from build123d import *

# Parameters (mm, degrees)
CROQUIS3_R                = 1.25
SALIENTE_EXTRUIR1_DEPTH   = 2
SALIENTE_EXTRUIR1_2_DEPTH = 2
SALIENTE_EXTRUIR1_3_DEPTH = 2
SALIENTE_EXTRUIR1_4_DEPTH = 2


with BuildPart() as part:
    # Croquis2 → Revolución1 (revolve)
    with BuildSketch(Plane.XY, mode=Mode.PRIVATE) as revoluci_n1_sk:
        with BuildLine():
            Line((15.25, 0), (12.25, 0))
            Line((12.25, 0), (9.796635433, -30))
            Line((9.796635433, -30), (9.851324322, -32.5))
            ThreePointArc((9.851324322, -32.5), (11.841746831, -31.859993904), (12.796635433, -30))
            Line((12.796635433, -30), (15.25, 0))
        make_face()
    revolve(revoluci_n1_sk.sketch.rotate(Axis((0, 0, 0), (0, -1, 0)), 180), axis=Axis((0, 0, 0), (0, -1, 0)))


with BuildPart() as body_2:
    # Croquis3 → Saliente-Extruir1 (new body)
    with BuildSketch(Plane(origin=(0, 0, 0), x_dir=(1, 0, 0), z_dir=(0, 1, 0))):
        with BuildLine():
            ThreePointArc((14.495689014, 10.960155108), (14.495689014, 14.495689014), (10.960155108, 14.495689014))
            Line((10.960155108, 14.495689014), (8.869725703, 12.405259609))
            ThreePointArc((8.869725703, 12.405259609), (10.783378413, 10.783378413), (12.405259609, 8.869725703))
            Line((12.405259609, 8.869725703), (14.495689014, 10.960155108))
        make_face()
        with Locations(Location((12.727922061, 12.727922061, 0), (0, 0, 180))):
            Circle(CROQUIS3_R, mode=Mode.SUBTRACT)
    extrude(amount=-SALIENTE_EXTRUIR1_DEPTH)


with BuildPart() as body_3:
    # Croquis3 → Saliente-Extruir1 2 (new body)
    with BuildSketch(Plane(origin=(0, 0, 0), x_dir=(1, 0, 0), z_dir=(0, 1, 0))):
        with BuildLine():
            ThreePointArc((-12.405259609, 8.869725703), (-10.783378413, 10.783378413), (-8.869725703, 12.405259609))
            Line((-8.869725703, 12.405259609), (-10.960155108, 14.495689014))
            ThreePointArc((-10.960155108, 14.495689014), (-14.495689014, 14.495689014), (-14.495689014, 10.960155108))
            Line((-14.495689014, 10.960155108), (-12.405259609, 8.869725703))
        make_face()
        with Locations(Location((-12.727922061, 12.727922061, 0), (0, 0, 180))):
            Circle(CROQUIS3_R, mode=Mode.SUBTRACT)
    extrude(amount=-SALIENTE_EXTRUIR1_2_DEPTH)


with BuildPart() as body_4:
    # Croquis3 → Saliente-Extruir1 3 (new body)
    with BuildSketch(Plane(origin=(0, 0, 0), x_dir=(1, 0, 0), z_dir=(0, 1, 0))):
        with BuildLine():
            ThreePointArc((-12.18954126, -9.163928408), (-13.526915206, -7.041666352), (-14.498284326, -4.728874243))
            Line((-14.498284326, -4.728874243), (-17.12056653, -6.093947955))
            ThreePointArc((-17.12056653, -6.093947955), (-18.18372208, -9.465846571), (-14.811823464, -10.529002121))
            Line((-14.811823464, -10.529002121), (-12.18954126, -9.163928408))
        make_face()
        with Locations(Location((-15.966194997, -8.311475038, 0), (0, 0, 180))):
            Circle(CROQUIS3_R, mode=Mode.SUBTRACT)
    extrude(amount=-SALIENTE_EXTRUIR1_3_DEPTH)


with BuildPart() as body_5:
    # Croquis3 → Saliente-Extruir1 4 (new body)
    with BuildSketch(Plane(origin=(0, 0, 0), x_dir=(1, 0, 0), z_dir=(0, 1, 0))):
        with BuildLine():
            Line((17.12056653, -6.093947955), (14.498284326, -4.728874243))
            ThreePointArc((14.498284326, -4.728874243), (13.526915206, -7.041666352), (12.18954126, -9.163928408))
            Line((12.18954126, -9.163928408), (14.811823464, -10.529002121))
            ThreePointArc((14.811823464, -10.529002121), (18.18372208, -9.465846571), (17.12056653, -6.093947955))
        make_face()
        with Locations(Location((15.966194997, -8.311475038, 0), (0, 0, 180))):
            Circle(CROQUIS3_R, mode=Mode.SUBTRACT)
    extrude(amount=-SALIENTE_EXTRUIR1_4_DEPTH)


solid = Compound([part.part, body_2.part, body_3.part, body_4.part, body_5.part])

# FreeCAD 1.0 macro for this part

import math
import FreeCAD as App
import Part
import Sketcher

V = App.Vector
Q = App.Units.Quantity

doc = App.newDocument("Part")
body = doc.addObject("PartDesign::Body", "Body")

# Sketch on XY plane
sketch1 = body.newObject("Sketcher::SketchObject", "Sketch")
sketch1.AttachmentSupport = (doc.getObject("XY_Plane"), [""])
sketch1.MapMode = "FlatFace"
sketch1.addGeometry(Part.LineSegment(V(15.2, 0, 0), V(12.2, 0, 0)), False)
sketch1.addGeometry(Part.LineSegment(V(12.2, 0, 0), V(9.8, -30, 0)), False)
sketch1.addGeometry(Part.LineSegment(V(9.8, -30, 0), V(9.9, -32.5, 0)), False)
sketch1.addGeometry(Part.ArcOfCircle(Part.Circle(V(10.1, -29.8, 0), V(0, 0, 1), 2.7), math.radians(-95), math.radians(-5)), False)
sketch1.addGeometry(Part.LineSegment(V(12.8, -30, 0), V(15.2, 0, 0)), False)
sketch1.addConstraint(Sketcher.Constraint("Coincident", 0, 2, 1, 1))
sketch1.addConstraint(Sketcher.Constraint("Coincident", 1, 2, 2, 1))
sketch1.addConstraint(Sketcher.Constraint("Coincident", 2, 2, 3, 1))
sketch1.addConstraint(Sketcher.Constraint("Tangent", 3, 2, 4, 1))
sketch1.addConstraint(Sketcher.Constraint("Coincident", 4, 2, 0, 1))
sketch1.addConstraint(Sketcher.Constraint("Horizontal", 0))
sketch1.addConstraint(Sketcher.Constraint("PointOnObject", 0, 2, -1))
sketch1.addConstraint(Sketcher.Constraint("Parallel", 1, 4))
sketch1.addConstraint(Sketcher.Constraint("Horizontal", 1, 2, 3, 2))
sketch1.addConstraint(Sketcher.Constraint("DistanceX", 0, 2, 0, 1, 3.0))
sketch1.addConstraint(Sketcher.Constraint("DistanceY", 1, 2, -1, 1, 30.0))
sketch1.addConstraint(Sketcher.Constraint("DistanceY", 2, 2, -1, 1, 32.5))
sketch1.addConstraint(Sketcher.Constraint("DistanceX", -1, 1, 0, 2, 12.25))
sketch1.addConstraint(Sketcher.Constraint("Radius", 3, 2.731745))
sketch1.addConstraint(Sketcher.Constraint("Distance", 2, 2.500598))
revolution = body.newObject("PartDesign::Revolution", "Revolution")
revolution.Profile = sketch1
revolution.ReferenceAxis = (sketch1, ["V_Axis"])
revolution.Angle = 360
body2 = doc.addObject("PartDesign::Body", "Body001")

# Sketch on XZ plane
sketch2 = body2.newObject("Sketcher::SketchObject", "Sketch001")
sketch2.AttachmentSupport = (doc.getObject("XZ_Plane001"), [""])
sketch2.MapMode = "FlatFace"
sketch2.addGeometry(Part.ArcOfCircle(Part.Circle(V(12.7, -12.7, 0), V(0, 0, 1), 2.5), math.radians(-135), math.radians(45)), False)
sketch2.addGeometry(Part.LineSegment(V(11, -14.5, 0), V(8.9, -12.4, 0)), False)
sketch2.addGeometry(Part.ArcOfCircle(Part.Circle(V(0, 0, 0), V(0, 0, 1), 15.3), math.radians(-54.44), math.radians(-35.56)), False)
sketch2.addGeometry(Part.LineSegment(V(12.4, -8.9, 0), V(14.5, -11, 0)), False)
sketch2.addGeometry(Part.Circle(V(12.7, -12.7, 0), V(0, 0, 1), 1.2), False)
sketch2.addConstraint(Sketcher.Constraint("Tangent", 0, 1, 1, 1))
sketch2.addConstraint(Sketcher.Constraint("Coincident", 1, 2, 2, 1))
sketch2.addConstraint(Sketcher.Constraint("Coincident", 2, 2, 3, 1))
sketch2.addConstraint(Sketcher.Constraint("Tangent", 3, 2, 0, 2))
sketch2.addConstraint(Sketcher.Constraint("Coincident", 2, 3, -1, 1))
sketch2.addConstraint(Sketcher.Constraint("Coincident", 4, 3, 0, 3))
sketch2.addConstraint(Sketcher.Constraint("Parallel", 1, 3))
sketch2.addConstraint(Sketcher.Constraint("Equal", 1, 3))
sketch2.addConstraint(Sketcher.Constraint("Diameter", 4, 2.5))
sketch2.addConstraint(Sketcher.Constraint("Radius", 0, 2.5))
sketch2.addConstraint(Sketcher.Constraint("Angle", 1, Q("135 deg")))
sketch2.addConstraint(Sketcher.Constraint("Radius", 2, 15.25))
sketch2.addConstraint(Sketcher.Constraint("DistanceY", 0, 1, -1, 1, 14.495689))
pad1 = body2.newObject("PartDesign::Pad", "Pad")
pad1.Profile = sketch2
pad1.Length = 2
body3 = doc.addObject("PartDesign::Body", "Body002")

# Sketch on XZ plane
sketch3 = body3.newObject("Sketcher::SketchObject", "Sketch002")
sketch3.AttachmentSupport = (doc.getObject("XZ_Plane002"), [""])
sketch3.MapMode = "FlatFace"
sketch3.addGeometry(Part.ArcOfCircle(Part.Circle(V(0, 0, 0), V(0, 0, 1), 15.3), math.radians(-144.44), math.radians(-125.56)), False)
sketch3.addGeometry(Part.LineSegment(V(-8.9, -12.4, 0), V(-11, -14.5, 0)), False)
sketch3.addGeometry(Part.ArcOfCircle(Part.Circle(V(-12.7, -12.7, 0), V(0, 0, 1), 2.5), math.radians(135), math.radians(315)), False)
sketch3.addGeometry(Part.LineSegment(V(-14.5, -11, 0), V(-12.4, -8.9, 0)), False)
sketch3.addGeometry(Part.Circle(V(-12.7, -12.7, 0), V(0, 0, 1), 1.2), False)
sketch3.addConstraint(Sketcher.Constraint("Coincident", 0, 2, 1, 1))
sketch3.addConstraint(Sketcher.Constraint("Tangent", 1, 2, 2, 2))
sketch3.addConstraint(Sketcher.Constraint("Tangent", 2, 1, 3, 1))
sketch3.addConstraint(Sketcher.Constraint("Coincident", 3, 2, 0, 1))
sketch3.addConstraint(Sketcher.Constraint("Coincident", 0, 3, -1, 1))
sketch3.addConstraint(Sketcher.Constraint("Coincident", 4, 3, 2, 3))
sketch3.addConstraint(Sketcher.Constraint("Parallel", 1, 3))
sketch3.addConstraint(Sketcher.Constraint("Equal", 1, 3))
sketch3.addConstraint(Sketcher.Constraint("Diameter", 4, 2.5))
sketch3.addConstraint(Sketcher.Constraint("Radius", 2, 2.5))
sketch3.addConstraint(Sketcher.Constraint("Angle", 1, Q("-135 deg")))
sketch3.addConstraint(Sketcher.Constraint("Radius", 0, 15.25))
sketch3.addConstraint(Sketcher.Constraint("DistanceY", 1, 2, -1, 1, 14.495689))
pad2 = body3.newObject("PartDesign::Pad", "Pad001")
pad2.Profile = sketch3
pad2.Length = 2
body4 = doc.addObject("PartDesign::Body", "Body003")

# Sketch on XZ plane
sketch4 = body4.newObject("Sketcher::SketchObject", "Sketch003")
sketch4.AttachmentSupport = (doc.getObject("XZ_Plane003"), [""])
sketch4.MapMode = "FlatFace"
sketch4.addGeometry(Part.ArcOfCircle(Part.Circle(V(0, 0, 0), V(0, 0, 1), 15.2), math.radians(143.06), math.radians(161.94)), False)
sketch4.addGeometry(Part.LineSegment(V(-14.5, 4.7, 0), V(-17.1, 6.1, 0)), False)
sketch4.addGeometry(Part.ArcOfCircle(Part.Circle(V(-16, 8.3, 0), V(0, 0, 1), 2.5), math.radians(63), math.radians(243)), False)
sketch4.addGeometry(Part.LineSegment(V(-14.8, 10.5, 0), V(-12.2, 9.2, 0)), False)
sketch4.addGeometry(Part.Circle(V(-16, 8.3, 0), V(0, 0, 1), 1.2), False)
sketch4.addConstraint(Sketcher.Constraint("Coincident", 0, 2, 1, 1))
sketch4.addConstraint(Sketcher.Constraint("Tangent", 1, 2, 2, 2))
sketch4.addConstraint(Sketcher.Constraint("Tangent", 2, 1, 3, 1))
sketch4.addConstraint(Sketcher.Constraint("Coincident", 3, 2, 0, 1))
sketch4.addConstraint(Sketcher.Constraint("Coincident", 0, 3, -1, 1))
sketch4.addConstraint(Sketcher.Constraint("Coincident", 4, 3, 2, 3))
sketch4.addConstraint(Sketcher.Constraint("Parallel", 1, 3))
sketch4.addConstraint(Sketcher.Constraint("Equal", 1, 3))
sketch4.addConstraint(Sketcher.Constraint("Diameter", 4, 2.5))
sketch4.addConstraint(Sketcher.Constraint("Radius", 2, 2.5))
sketch4.addConstraint(Sketcher.Constraint("Radius", 0, 15.25))
sketch4.addConstraint(Sketcher.Constraint("Angle", 1, Q("152.5 deg")))
sketch4.addConstraint(Sketcher.Constraint("DistanceY", 0, 2, 2, 3, 3.582601))
pad3 = body4.newObject("PartDesign::Pad", "Pad002")
pad3.Profile = sketch4
pad3.Length = 2
body5 = doc.addObject("PartDesign::Body", "Body004")

# Sketch on XZ plane
sketch5 = body5.newObject("Sketcher::SketchObject", "Sketch004")
sketch5.AttachmentSupport = (doc.getObject("XZ_Plane004"), [""])
sketch5.MapMode = "FlatFace"
sketch5.addGeometry(Part.LineSegment(V(17.1, 6.1, 0), V(14.5, 4.7, 0)), False)
sketch5.addGeometry(Part.ArcOfCircle(Part.Circle(V(0, 0, 0), V(0, 0, 1), 15.2), math.radians(18.06), math.radians(36.94)), False)
sketch5.addGeometry(Part.LineSegment(V(12.2, 9.2, 0), V(14.8, 10.5, 0)), False)
sketch5.addGeometry(Part.ArcOfCircle(Part.Circle(V(16, 8.3, 0), V(0, 0, 1), 2.5), math.radians(-63), math.radians(117)), False)
sketch5.addGeometry(Part.Circle(V(16, 8.3, 0), V(0, 0, 1), 1.2), False)
sketch5.addConstraint(Sketcher.Constraint("Coincident", 0, 2, 1, 1))
sketch5.addConstraint(Sketcher.Constraint("Coincident", 1, 2, 2, 1))
sketch5.addConstraint(Sketcher.Constraint("Tangent", 2, 2, 3, 2))
sketch5.addConstraint(Sketcher.Constraint("Tangent", 3, 1, 0, 1))
sketch5.addConstraint(Sketcher.Constraint("Coincident", 1, 3, -1, 1))
sketch5.addConstraint(Sketcher.Constraint("Coincident", 4, 3, 3, 3))
sketch5.addConstraint(Sketcher.Constraint("Parallel", 0, 2))
sketch5.addConstraint(Sketcher.Constraint("Equal", 0, 2))
sketch5.addConstraint(Sketcher.Constraint("Diameter", 4, 2.5))
sketch5.addConstraint(Sketcher.Constraint("Radius", 3, 2.5))
sketch5.addConstraint(Sketcher.Constraint("Radius", 1, 15.25))
sketch5.addConstraint(Sketcher.Constraint("Angle", 0, Q("-152.5 deg")))
sketch5.addConstraint(Sketcher.Constraint("DistanceY", 0, 2, 3, 3, 3.582601))
pad4 = body5.newObject("PartDesign::Pad", "Pad003")
pad4.Profile = sketch5
pad4.Length = 2

doc.recompute()
